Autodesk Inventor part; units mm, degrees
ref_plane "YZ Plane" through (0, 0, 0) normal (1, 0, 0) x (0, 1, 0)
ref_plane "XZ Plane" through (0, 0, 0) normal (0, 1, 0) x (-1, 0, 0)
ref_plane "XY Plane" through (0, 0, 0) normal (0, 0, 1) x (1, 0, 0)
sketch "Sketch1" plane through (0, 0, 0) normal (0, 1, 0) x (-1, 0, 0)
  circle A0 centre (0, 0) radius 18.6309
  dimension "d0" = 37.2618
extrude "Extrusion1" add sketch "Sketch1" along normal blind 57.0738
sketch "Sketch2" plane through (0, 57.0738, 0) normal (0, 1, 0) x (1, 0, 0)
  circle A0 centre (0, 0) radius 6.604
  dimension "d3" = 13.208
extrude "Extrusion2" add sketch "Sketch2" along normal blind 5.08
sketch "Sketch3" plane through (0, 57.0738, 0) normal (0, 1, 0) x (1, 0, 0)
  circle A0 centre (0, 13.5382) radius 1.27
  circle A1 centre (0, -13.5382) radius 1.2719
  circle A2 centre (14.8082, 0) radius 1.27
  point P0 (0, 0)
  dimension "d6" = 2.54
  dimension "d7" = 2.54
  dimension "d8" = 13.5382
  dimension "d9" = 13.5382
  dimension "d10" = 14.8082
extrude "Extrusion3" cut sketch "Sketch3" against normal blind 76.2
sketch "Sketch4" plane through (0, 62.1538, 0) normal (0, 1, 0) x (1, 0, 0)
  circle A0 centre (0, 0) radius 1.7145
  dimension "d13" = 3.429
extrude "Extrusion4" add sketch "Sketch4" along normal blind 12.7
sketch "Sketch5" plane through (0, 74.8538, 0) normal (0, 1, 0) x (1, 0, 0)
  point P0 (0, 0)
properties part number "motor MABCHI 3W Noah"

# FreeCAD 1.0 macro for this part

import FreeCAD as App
import Part
import Sketcher
from FreeCAD import Vector
Q = App.Units.Quantity

doc = App.newDocument("Part")
body = doc.addObject("PartDesign::Body", "Body")

sketch1 = body.newObject("Sketcher::SketchObject", "Sketch")
sketch1.AttachmentSupport = (doc.getObject("XZ_Plane"), [""])
sketch1.MapMode = "FlatFace"
sketch1.addGeometry(Part.Circle(Vector(0, 0, 0), Vector(0, 0, 1), 19), False)
sketch1.addConstraint([
    Sketcher.Constraint("Coincident", 0, 3, -1, 1),
    Sketcher.Constraint("Diameter", 0, Q("1.467 in")),
])
pad1 = body.newObject("PartDesign::Pad", "Pad")
pad1.Profile = sketch1
pad1.Length = Q("2.247 in")
pad1.Reversed = True

sketch2 = body.newObject("Sketcher::SketchObject", "Sketch001")
sketch2.AttachmentSupport = (doc.getObject("XZ_Plane"), [""])
sketch2.MapMode = "FlatFace"
sketch2.AttachmentOffset = App.Placement(Vector(0, 0, -2.247 * 25.4), App.Rotation())
sketch2.addGeometry(Part.Circle(Vector(0, 0, 0), Vector(0, 0, 1), 7), False)
sketch2.addConstraint([
    Sketcher.Constraint("Coincident", 0, 3, -1, 1),
    Sketcher.Constraint("Diameter", 0, Q("0.52 in")),
])
pad2 = body.newObject("PartDesign::Pad", "Pad001")
pad2.Profile = sketch2
pad2.Length = Q("0.2 in")
pad2.Reversed = True

sketch3 = body.newObject("Sketcher::SketchObject", "Sketch002")
sketch3.AttachmentSupport = (doc.getObject("XZ_Plane"), [""])
sketch3.MapMode = "FlatFace"
sketch3.AttachmentOffset = App.Placement(Vector(0, 0, -2.247 * 25.4), App.Rotation())
sketch3.addGeometry([
    Part.Circle(Vector(0, -13.5, 0), Vector(0, 0, 1), 1.3),
    Part.Circle(Vector(0, 13.5, 0), Vector(0, 0, 1), 1.3),
    Part.Circle(Vector(14.8, 0, 0), Vector(0, 0, 1), 1.3),
], False)
sketch3.addConstraint([
    Sketcher.Constraint("Equal", 0, 2),
    Sketcher.Constraint("Symmetric", 0, 3, 1, 3, -1, 1),
    Sketcher.Constraint("PointOnObject", 0, 3, -2),
    Sketcher.Constraint("PointOnObject", 2, 3, -1),
    Sketcher.Constraint("Diameter", 0, Q("0.1 in")),
    Sketcher.Constraint("DistanceY", 0, 3, -1, 1, Q("0.533 in")),
    Sketcher.Constraint("DistanceX", -1, 1, 2, 3, Q("0.583 in")),
    Sketcher.Constraint("Diameter", 1, Q("2.5438 mm")),
])
pocket1 = body.newObject("PartDesign::Pocket", "Pocket")
pocket1.Profile = sketch3
pocket1.Length = Q("3 in")
pocket1.Reversed = True

sketch4 = body.newObject("Sketcher::SketchObject", "Sketch003")
sketch4.AttachmentSupport = (doc.getObject("XZ_Plane"), [""])
sketch4.MapMode = "FlatFace"
sketch4.AttachmentOffset = App.Placement(Vector(0, 0, -2.447 * 25.4), App.Rotation())
sketch4.addGeometry(Part.Circle(Vector(0, 0, 0), Vector(0, 0, 1), 1.7), False)
sketch4.addConstraint([
    Sketcher.Constraint("Coincident", 0, 3, -1, 1),
    Sketcher.Constraint("Diameter", 0, Q("0.135 in")),
])
pad3 = body.newObject("PartDesign::Pad", "Pad002")
pad3.Profile = sketch4
pad3.Length = Q("0.5 in")
pad3.Reversed = True

doc.recompute()
